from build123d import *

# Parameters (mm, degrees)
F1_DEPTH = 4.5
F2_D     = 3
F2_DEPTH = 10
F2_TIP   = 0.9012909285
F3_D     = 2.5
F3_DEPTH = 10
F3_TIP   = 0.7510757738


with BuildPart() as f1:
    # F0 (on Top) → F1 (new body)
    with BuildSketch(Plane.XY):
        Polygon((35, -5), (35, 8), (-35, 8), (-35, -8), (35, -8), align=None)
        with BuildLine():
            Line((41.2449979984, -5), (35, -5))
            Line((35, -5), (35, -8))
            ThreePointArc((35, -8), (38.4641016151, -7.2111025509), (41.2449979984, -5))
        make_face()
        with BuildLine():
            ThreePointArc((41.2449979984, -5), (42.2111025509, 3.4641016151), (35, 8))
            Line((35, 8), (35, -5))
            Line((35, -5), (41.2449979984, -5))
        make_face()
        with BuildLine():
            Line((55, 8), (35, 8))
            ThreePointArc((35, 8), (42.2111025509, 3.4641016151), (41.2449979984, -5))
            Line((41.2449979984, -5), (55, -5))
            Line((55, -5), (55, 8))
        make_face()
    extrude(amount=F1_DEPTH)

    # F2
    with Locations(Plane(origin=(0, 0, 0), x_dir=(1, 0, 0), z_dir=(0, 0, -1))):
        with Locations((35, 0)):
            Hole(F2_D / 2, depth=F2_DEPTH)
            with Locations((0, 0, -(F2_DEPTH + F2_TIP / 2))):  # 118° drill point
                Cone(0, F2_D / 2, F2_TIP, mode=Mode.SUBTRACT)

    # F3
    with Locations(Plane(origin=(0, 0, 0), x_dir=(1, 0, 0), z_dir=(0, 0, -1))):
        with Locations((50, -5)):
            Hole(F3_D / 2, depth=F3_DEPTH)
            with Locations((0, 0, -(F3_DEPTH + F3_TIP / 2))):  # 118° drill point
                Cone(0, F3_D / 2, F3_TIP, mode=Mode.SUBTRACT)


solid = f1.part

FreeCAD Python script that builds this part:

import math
import FreeCAD as App
import Part
import Sketcher

doc = App.newDocument("Part")
body = doc.addObject("PartDesign::Body", "Body")

sketch1 = body.newObject("Sketcher::SketchObject", "Sketch")
sketch1.AttachmentSupport = (doc.getObject("XY_Plane"), [""])
sketch1.MapMode = "FlatFace"
sketch1.addGeometry(Part.LineSegment(App.Vector(-35, 8, 0), App.Vector(-35, -8, 0)), False)
sketch1.addGeometry(Part.LineSegment(App.Vector(-35, -8, 0), App.Vector(35, -8, 0)), False)
sketch1.addGeometry(Part.ArcOfCircle(Part.Circle(App.Vector(35, 0, 0), App.Vector(0, 0, 1), 8), math.radians(-90), math.radians(-38.682187)), False)
sketch1.addGeometry(Part.LineSegment(App.Vector(41.244998, -5, 0), App.Vector(55, -5, 0)), False)
sketch1.addGeometry(Part.LineSegment(App.Vector(55, -5, 0), App.Vector(55, 8, 0)), False)
sketch1.addGeometry(Part.LineSegment(App.Vector(55, 8, 0), App.Vector(-35, 8, 0)), False)
sketch1.addConstraint(Sketcher.Constraint("Coincident", 0, 2, 1, 1))
sketch1.addConstraint(Sketcher.Constraint("Tangent", 1, 2, 2, 1))
sketch1.addConstraint(Sketcher.Constraint("Coincident", 2, 2, 3, 1))
sketch1.addConstraint(Sketcher.Constraint("Coincident", 3, 2, 4, 1))
sketch1.addConstraint(Sketcher.Constraint("Coincident", 4, 2, 5, 1))
sketch1.addConstraint(Sketcher.Constraint("Coincident", 5, 2, 0, 1))
sketch1.addConstraint(Sketcher.Constraint("Vertical", 0))
sketch1.addConstraint(Sketcher.Constraint("Horizontal", 1))
sketch1.addConstraint(Sketcher.Constraint("Horizontal", 3))
sketch1.addConstraint(Sketcher.Constraint("Vertical", 4))
sketch1.addConstraint(Sketcher.Constraint("Horizontal", 5))
sketch1.addConstraint(Sketcher.Constraint("Symmetric", 1, 2, 5, 2, -1, 1))
sketch1.addConstraint(Sketcher.Constraint("PointOnObject", 2, 3, -1))
sketch1.addConstraint(Sketcher.Constraint("Radius", 2, 8.0))
sketch1.addConstraint(Sketcher.Constraint("DistanceX", 1, 1, 1, 2, 70.0))
sketch1.addConstraint(Sketcher.Constraint("DistanceX", 5, 2, 5, 1, 90.0))
sketch1.addConstraint(Sketcher.Constraint("DistanceY", 4, 1, 4, 2, 13.0))
pad1 = body.newObject("PartDesign::Pad", "Pad")
pad1.Profile = sketch1
pad1.Length = 4.5

sketch2 = body.newObject("Sketcher::SketchObject", "Sketch001")
sketch2.AttachmentSupport = (doc.getObject("XY_Plane"), [""])
sketch2.MapMode = "FlatFace"
sketch2.addGeometry(Part.Circle(App.Vector(35, 0, 0), App.Vector(0, 0, 1), 1.5), False)
sketch2.addConstraint(Sketcher.Constraint("PointOnObject", 0, 3, -1))
sketch2.addConstraint(Sketcher.Constraint("Diameter", 0, 3.0))
sketch2.addConstraint(Sketcher.Constraint("DistanceX", -1, 1, 0, 3, 35.0))
doc.recompute()
hole = body.newObject("PartDesign::Hole", "Hole")
hole.Profile = sketch2
hole.ThreadType = "None"
hole.Diameter = 3
hole.DepthType = "Dimension"
hole.Depth = 10
hole.DrillPoint = "Angled"
hole.DrillPointAngle = 118
hole.Reversed = True

sketch3 = body.newObject("Sketcher::SketchObject", "Sketch002")
sketch3.AttachmentSupport = (doc.getObject("XY_Plane"), [""])
sketch3.MapMode = "FlatFace"
sketch3.addGeometry(Part.Circle(App.Vector(50, 5, 0), App.Vector(0, 0, 1), 1.25), False)
sketch3.addConstraint(Sketcher.Constraint("Diameter", 0, 2.5))
sketch3.addConstraint(Sketcher.Constraint("DistanceX", -1, 1, 0, 3, 50.0))
sketch3.addConstraint(Sketcher.Constraint("DistanceY", -1, 1, 0, 3, 5.0))
doc.recompute()
hole2 = body.newObject("PartDesign::Hole", "Hole001")
hole2.Profile = sketch3
hole2.ThreadType = "None"
hole2.Diameter = 2.5
hole2.DepthType = "Dimension"
hole2.Depth = 10
hole2.DrillPoint = "Angled"
hole2.DrillPointAngle = 118
hole2.Reversed = True

doc.recompute()
